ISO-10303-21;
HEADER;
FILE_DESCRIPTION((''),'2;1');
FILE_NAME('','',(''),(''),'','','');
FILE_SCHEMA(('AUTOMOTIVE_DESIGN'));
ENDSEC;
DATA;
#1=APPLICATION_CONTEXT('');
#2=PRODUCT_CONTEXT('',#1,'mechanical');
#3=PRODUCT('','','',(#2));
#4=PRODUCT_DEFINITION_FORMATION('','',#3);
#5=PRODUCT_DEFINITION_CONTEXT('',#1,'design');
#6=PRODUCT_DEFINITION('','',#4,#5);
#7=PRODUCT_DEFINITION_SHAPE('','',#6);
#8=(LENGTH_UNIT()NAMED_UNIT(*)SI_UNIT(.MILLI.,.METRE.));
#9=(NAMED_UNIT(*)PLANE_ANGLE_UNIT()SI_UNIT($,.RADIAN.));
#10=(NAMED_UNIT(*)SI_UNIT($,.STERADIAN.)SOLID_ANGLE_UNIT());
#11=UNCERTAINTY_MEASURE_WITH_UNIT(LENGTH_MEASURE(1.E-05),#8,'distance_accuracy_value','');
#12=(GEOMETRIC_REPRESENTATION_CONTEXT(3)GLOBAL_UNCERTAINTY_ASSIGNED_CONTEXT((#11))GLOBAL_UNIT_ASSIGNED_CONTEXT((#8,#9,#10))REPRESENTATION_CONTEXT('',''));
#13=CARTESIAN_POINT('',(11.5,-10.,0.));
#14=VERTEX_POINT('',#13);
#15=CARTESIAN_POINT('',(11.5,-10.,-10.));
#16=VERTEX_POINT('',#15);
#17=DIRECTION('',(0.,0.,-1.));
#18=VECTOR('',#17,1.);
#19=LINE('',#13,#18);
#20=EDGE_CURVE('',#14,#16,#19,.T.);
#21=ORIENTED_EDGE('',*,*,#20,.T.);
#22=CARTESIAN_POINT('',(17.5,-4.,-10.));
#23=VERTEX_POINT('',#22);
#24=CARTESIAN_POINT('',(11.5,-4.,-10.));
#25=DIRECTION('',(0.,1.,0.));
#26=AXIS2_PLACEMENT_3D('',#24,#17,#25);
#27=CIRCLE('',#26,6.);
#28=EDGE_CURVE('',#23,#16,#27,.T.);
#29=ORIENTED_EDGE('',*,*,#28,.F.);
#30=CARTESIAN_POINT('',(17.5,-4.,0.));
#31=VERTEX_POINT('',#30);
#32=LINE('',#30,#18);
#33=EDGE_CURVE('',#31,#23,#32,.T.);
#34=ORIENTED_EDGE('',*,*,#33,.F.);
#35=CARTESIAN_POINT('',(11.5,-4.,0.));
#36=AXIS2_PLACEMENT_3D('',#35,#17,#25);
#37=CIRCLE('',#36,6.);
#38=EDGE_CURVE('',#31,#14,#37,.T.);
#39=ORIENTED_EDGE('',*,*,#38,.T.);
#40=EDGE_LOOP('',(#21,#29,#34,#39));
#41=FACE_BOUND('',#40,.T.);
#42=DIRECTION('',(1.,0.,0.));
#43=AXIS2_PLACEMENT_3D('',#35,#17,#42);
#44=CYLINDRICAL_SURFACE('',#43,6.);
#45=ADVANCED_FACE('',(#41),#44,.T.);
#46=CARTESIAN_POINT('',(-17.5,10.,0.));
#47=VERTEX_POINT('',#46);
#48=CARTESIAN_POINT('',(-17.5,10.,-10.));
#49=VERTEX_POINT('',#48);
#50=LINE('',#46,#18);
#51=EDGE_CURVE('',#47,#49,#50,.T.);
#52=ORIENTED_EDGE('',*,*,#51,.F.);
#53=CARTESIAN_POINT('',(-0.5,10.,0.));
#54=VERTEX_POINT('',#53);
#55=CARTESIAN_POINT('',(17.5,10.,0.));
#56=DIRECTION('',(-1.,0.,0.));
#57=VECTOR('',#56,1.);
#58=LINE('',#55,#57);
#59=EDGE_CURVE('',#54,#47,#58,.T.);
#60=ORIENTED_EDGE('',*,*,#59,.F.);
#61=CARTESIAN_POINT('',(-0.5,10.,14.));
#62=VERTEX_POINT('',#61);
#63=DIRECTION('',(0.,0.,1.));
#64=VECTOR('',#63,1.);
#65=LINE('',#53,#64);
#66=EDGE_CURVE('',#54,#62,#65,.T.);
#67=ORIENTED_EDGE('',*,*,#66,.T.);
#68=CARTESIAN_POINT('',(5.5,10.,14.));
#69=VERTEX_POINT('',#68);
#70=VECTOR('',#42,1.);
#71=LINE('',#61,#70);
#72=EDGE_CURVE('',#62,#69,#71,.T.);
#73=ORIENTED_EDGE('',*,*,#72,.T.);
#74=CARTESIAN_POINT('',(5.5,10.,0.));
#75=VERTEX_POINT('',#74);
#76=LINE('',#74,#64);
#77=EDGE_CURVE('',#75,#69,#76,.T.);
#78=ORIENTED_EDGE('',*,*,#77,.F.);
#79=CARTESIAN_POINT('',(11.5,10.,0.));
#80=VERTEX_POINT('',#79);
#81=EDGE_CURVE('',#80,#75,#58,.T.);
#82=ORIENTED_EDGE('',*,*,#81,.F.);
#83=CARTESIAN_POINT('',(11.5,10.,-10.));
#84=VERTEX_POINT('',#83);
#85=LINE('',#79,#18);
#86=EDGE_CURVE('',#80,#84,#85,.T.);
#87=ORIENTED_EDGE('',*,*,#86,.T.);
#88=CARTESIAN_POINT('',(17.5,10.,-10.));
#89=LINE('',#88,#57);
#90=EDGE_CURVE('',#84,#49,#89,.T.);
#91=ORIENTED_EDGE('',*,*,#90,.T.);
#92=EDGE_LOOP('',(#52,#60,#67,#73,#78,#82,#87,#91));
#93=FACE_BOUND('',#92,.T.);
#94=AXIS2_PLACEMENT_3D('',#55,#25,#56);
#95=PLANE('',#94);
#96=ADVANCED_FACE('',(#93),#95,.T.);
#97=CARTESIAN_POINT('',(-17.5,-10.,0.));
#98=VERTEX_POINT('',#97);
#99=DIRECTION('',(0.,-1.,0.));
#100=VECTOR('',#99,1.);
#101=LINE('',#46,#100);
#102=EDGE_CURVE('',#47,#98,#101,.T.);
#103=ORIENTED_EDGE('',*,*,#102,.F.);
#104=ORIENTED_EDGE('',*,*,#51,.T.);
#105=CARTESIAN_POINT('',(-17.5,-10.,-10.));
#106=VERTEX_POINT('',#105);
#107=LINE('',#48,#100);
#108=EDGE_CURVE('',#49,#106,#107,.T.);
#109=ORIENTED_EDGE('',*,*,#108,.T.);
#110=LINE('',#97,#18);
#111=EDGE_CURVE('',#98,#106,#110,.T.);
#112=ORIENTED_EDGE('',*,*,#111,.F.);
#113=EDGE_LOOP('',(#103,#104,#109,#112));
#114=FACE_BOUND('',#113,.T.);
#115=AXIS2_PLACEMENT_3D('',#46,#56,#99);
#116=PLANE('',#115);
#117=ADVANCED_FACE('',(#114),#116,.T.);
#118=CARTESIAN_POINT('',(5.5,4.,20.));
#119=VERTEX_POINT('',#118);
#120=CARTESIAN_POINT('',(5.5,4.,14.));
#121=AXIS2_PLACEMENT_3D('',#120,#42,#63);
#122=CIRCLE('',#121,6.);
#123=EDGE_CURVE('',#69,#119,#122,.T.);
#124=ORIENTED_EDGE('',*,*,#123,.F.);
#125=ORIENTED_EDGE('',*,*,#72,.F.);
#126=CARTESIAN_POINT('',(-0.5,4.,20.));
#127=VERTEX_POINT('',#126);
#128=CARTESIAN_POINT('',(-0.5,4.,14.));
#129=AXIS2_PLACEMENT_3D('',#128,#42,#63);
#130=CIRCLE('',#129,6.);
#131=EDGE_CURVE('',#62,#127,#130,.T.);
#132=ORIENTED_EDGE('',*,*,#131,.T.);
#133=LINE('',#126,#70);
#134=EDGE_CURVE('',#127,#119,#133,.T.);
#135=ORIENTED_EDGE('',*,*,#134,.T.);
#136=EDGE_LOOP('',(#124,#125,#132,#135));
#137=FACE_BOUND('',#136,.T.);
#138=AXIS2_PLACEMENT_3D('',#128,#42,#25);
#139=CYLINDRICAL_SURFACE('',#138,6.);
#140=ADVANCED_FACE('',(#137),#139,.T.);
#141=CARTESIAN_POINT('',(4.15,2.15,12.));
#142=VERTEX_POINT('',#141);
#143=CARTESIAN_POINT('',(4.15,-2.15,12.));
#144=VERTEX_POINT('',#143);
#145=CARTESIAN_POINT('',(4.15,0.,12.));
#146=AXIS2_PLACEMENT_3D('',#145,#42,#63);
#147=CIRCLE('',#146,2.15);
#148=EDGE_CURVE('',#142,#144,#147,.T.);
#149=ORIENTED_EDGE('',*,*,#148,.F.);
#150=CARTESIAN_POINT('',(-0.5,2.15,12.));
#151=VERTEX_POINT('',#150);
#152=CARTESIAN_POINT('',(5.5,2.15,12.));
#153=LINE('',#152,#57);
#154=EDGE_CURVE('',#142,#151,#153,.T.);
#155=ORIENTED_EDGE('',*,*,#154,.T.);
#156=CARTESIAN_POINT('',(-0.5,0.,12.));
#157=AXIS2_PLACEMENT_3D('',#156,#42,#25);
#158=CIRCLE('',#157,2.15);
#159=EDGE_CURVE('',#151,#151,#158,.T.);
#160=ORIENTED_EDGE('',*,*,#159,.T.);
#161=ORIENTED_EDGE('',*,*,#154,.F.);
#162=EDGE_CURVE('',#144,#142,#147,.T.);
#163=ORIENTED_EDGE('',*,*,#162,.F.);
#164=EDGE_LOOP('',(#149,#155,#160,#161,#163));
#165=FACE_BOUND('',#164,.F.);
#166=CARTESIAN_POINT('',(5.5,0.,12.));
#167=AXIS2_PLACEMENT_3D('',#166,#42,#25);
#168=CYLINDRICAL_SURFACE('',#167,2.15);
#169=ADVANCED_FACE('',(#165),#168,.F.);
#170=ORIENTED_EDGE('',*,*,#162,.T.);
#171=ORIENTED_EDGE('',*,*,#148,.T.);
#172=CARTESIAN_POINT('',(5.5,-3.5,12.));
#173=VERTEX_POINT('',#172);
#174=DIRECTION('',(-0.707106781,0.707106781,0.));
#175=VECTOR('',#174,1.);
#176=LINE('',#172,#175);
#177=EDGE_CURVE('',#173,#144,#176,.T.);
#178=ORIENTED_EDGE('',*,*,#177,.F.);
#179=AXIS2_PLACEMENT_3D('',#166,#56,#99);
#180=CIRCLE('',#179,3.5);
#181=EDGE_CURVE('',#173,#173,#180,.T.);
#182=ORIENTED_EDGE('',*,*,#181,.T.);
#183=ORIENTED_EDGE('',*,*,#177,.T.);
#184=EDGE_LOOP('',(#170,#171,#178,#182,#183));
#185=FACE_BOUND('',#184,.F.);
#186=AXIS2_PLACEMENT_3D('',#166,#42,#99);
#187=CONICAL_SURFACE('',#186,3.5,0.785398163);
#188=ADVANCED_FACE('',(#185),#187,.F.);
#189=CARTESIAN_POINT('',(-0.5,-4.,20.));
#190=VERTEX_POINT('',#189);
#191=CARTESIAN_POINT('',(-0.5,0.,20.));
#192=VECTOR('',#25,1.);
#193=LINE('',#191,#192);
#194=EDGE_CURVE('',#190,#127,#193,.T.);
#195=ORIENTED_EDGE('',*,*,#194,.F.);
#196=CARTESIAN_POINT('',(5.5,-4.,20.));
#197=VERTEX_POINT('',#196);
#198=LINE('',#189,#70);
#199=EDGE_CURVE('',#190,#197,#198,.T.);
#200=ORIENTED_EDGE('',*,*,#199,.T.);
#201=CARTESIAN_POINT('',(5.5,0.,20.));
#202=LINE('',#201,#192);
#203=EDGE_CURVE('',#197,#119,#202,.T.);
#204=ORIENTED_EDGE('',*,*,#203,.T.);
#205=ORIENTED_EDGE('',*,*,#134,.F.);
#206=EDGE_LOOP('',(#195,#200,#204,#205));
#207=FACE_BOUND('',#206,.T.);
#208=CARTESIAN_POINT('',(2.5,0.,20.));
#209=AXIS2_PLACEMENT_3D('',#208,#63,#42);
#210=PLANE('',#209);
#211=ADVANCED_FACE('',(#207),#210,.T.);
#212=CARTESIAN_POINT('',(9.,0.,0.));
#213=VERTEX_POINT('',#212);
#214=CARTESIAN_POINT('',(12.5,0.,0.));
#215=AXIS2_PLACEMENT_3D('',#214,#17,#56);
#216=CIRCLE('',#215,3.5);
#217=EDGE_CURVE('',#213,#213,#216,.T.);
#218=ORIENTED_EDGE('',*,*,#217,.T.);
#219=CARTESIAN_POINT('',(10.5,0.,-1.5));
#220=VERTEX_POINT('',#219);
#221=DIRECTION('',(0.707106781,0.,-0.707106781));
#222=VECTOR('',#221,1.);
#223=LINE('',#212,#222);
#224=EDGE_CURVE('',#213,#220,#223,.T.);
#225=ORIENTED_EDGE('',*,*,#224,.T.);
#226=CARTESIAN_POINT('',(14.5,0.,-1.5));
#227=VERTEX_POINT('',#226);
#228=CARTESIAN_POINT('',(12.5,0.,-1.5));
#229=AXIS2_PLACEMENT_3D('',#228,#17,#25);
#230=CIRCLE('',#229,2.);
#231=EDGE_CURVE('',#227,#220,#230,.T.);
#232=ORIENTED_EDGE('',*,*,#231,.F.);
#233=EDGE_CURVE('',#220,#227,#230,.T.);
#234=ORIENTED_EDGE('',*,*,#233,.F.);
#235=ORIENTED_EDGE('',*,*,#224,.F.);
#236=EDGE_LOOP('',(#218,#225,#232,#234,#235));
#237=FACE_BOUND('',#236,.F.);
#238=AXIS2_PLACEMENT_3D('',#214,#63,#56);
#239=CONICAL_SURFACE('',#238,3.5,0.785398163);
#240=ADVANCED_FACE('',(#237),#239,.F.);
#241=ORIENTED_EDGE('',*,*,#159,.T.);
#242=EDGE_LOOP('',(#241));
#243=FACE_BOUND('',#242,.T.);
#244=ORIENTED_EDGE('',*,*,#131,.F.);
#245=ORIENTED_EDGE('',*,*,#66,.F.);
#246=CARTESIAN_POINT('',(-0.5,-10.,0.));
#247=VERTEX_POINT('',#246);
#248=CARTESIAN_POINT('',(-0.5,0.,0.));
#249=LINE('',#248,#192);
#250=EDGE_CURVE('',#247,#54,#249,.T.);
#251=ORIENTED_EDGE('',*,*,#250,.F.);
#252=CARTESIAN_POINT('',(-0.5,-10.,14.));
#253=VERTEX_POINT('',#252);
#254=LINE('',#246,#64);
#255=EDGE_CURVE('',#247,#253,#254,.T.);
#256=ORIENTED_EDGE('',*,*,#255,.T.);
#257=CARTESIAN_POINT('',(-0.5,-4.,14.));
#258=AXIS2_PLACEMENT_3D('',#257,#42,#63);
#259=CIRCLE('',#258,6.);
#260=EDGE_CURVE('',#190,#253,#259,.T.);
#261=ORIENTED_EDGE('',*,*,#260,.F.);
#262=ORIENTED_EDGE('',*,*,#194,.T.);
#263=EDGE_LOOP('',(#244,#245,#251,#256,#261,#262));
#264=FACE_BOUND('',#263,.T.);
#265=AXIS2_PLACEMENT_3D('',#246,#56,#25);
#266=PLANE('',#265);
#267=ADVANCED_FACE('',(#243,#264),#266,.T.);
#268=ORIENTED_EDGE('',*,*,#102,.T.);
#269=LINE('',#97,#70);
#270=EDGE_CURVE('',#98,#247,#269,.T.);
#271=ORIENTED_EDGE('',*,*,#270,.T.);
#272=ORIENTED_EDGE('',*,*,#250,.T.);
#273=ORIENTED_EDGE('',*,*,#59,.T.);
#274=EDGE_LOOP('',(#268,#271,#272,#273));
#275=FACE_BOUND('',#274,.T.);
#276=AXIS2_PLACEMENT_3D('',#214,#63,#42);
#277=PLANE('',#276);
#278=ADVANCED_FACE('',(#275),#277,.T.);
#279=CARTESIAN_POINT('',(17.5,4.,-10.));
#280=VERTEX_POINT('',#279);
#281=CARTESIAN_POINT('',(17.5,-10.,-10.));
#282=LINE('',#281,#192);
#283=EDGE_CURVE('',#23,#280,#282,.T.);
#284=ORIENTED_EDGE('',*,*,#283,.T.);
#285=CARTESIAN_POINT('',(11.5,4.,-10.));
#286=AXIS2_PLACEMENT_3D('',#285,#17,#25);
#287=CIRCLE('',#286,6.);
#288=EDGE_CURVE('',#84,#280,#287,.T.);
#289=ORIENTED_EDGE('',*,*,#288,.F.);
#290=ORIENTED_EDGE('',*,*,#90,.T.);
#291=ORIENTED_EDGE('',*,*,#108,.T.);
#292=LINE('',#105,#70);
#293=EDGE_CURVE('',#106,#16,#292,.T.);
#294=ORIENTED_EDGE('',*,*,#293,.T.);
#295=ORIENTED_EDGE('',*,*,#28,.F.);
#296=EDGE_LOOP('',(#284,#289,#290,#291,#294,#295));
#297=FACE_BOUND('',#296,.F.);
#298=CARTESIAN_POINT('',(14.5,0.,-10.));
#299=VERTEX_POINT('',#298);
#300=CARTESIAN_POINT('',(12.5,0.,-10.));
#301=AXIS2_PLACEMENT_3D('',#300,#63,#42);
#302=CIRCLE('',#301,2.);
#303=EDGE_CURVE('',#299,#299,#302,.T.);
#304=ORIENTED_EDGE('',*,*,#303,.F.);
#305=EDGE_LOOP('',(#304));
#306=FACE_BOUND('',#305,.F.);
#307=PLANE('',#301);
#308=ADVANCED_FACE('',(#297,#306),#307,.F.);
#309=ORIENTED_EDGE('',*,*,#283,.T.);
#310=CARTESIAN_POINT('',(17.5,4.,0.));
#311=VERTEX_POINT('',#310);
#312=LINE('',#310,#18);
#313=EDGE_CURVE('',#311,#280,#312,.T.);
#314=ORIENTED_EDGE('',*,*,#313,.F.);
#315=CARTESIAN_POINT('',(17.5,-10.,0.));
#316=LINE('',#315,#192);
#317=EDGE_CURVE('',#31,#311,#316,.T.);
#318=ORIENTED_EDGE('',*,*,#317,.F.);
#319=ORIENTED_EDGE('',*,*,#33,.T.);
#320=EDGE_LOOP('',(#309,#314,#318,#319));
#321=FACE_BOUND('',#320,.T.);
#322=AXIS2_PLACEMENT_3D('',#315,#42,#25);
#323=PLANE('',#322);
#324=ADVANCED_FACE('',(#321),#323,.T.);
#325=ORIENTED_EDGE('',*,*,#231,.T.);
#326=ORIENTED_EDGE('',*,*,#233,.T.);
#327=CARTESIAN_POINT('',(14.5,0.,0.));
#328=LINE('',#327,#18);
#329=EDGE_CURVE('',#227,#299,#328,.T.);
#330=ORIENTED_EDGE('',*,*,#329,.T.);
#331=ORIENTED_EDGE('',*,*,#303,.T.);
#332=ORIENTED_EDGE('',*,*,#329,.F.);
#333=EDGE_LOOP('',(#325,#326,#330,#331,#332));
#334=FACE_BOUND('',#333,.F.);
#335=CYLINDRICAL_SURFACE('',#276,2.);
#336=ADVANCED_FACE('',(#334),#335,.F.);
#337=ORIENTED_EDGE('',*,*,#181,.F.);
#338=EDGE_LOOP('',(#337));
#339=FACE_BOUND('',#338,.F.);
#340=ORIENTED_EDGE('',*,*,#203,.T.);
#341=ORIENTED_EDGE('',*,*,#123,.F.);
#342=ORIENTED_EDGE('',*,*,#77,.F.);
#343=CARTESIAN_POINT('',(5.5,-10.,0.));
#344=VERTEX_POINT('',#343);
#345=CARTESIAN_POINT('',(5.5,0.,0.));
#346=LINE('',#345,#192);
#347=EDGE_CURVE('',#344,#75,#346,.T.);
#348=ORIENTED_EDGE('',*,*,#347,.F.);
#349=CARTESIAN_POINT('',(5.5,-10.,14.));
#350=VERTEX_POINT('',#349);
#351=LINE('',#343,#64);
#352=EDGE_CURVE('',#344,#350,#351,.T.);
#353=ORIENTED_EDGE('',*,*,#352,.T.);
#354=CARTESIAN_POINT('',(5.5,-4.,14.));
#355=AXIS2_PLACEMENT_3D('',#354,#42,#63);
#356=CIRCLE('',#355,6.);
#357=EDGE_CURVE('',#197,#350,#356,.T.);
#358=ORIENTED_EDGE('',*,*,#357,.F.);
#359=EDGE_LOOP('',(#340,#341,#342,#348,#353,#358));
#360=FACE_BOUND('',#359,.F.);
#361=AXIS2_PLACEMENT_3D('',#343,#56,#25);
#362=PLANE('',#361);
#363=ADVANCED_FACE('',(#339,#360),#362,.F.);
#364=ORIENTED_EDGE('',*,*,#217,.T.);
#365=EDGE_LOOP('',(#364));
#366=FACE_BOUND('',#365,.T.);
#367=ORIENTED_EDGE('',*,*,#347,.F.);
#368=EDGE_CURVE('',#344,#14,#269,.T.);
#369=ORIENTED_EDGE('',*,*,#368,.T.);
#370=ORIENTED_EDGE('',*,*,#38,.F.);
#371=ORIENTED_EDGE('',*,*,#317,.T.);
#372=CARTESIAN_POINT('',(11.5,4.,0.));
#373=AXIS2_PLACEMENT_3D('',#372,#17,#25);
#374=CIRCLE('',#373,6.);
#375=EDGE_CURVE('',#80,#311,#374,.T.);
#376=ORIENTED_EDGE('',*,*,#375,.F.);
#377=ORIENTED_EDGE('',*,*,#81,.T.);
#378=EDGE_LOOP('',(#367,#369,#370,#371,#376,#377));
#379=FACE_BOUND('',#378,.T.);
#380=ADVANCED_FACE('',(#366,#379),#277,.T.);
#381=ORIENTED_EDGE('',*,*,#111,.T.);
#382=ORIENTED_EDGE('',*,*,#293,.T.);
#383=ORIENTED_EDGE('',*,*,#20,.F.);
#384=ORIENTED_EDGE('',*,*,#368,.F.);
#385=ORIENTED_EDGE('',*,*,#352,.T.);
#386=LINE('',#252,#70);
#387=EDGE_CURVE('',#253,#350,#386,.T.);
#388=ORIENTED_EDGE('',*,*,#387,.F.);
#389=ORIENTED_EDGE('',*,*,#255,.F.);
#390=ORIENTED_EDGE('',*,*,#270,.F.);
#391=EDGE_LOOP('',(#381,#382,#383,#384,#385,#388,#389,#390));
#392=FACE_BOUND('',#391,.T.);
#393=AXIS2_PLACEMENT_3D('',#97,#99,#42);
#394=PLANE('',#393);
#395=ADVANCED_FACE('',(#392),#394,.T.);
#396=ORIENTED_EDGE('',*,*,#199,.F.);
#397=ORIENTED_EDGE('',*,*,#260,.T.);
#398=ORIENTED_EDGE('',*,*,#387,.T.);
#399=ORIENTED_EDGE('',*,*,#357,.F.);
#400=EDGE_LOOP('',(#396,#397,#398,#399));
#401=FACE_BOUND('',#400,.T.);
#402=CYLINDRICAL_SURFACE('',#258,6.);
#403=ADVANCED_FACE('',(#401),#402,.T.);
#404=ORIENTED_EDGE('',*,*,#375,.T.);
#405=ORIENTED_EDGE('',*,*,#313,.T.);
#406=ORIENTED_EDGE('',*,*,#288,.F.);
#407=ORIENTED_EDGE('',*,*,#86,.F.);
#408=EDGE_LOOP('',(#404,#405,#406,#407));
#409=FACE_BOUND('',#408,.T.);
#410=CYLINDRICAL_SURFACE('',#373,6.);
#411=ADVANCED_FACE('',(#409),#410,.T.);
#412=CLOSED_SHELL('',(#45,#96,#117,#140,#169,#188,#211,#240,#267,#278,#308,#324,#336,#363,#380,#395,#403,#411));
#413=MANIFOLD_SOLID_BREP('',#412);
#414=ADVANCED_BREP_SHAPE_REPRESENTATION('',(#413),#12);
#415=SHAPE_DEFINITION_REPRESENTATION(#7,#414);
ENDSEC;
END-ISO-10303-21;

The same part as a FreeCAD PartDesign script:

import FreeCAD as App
import Part
import Sketcher
from FreeCAD import Vector
Q = App.Units.Quantity


def edges_at(feature, points):
    """Names of the edges that pass closest to the given points."""
    edges = feature.Shape.Edges
    near = lambda p: min(range(len(edges)), key=lambda i: edges[i].distToShape(Part.Vertex(*p))[0])
    return sorted({f"Edge{near(p) + 1}" for p in points})

doc = App.newDocument("Part")
body = doc.addObject("PartDesign::Body", "Body")

sketch1 = body.newObject("Sketcher::SketchObject", "Sketch")
sketch1.AttachmentSupport = (doc.getObject("XY_Plane"), [""])
sketch1.MapMode = "FlatFace"
sketch1.addGeometry([
    Part.LineSegment(Vector(17.5, 10, 0), Vector(-17.5, 10, 0)),
    Part.LineSegment(Vector(-17.5, 10, 0), Vector(-17.5, -10, 0)),
    Part.LineSegment(Vector(-17.5, -10, 0), Vector(17.5, -10, 0)),
    Part.LineSegment(Vector(17.5, -10, 0), Vector(17.5, 10, 0)),
    Part.Circle(Vector(12.5, 0, 0), Vector(0, 0, 1), 2),
], False)
sketch1.addConstraint([
    Sketcher.Constraint("Coincident", 0, 2, 1, 1),
    Sketcher.Constraint("Coincident", 1, 2, 2, 1),
    Sketcher.Constraint("Coincident", 2, 2, 3, 1),
    Sketcher.Constraint("Coincident", 3, 2, 0, 1),
    Sketcher.Constraint("Horizontal", 0),
    Sketcher.Constraint("Vertical", 1),
    Sketcher.Constraint("Horizontal", 2),
    Sketcher.Constraint("Vertical", 3),
    Sketcher.Constraint("Symmetric", 0, 2, 2, 2, -1, 1),
    Sketcher.Constraint("PointOnObject", 4, 3, -1),
    Sketcher.Constraint("Diameter", 4, Q("4 mm")),
    Sketcher.Constraint("DistanceX", 0, 2, 0, 1, Q("35 mm")),
    Sketcher.Constraint("DistanceY", 1, 2, 1, 1, Q("20 mm")),
    Sketcher.Constraint("DistanceX", 0, 2, 4, 3, Q("30 mm")),
])
pad1 = body.newObject("PartDesign::Pad", "Pad")
pad1.Profile = sketch1
pad1.Length = 10
pad1.Reversed = True

sketch2 = body.newObject("Sketcher::SketchObject", "Sketch001")
sketch2.AttachmentSupport = (doc.getObject("XY_Plane"), [""])
sketch2.MapMode = "FlatFace"
sketch2.addGeometry([
    Part.LineSegment(Vector(-0.5, 10, 0), Vector(-0.5, -10, 0)),
    Part.LineSegment(Vector(-0.5, -10, 0), Vector(5.5, -10, 0)),
    Part.LineSegment(Vector(5.5, -10, 0), Vector(5.5, 10, 0)),
    Part.LineSegment(Vector(5.5, 10, 0), Vector(-0.5, 10, 0)),
], False)
sketch2.addConstraint([
    Sketcher.Constraint("Coincident", 0, 2, 1, 1),
    Sketcher.Constraint("Coincident", 1, 2, 2, 1),
    Sketcher.Constraint("Coincident", 2, 2, 3, 1),
    Sketcher.Constraint("Coincident", 3, 2, 0, 1),
    Sketcher.Constraint("Vertical", 0),
    Sketcher.Constraint("Horizontal", 1),
    Sketcher.Constraint("Vertical", 2),
    Sketcher.Constraint("Horizontal", 3),
    Sketcher.Constraint("DistanceX", 1, 1, 1, 2, Q("6 mm")),
    Sketcher.Constraint("DistanceY", 0, 2, 0, 1, Q("20 mm")),
    Sketcher.Constraint("DistanceY", 0, 2, -1, 1, Q("10 mm")),
    Sketcher.Constraint("DistanceX", 0, 2, -1, 1, Q("0.5 mm")),
])
pad2 = body.newObject("PartDesign::Pad", "Pad001")
pad2.Profile = sketch2
pad2.Length = 20

sketch3 = body.newObject("Sketcher::SketchObject", "Sketch002")
sketch3.AttachmentSupport = (doc.getObject("YZ_Plane"), [""])
sketch3.MapMode = "FlatFace"
sketch3.AttachmentOffset = App.Placement(Vector(0, 0, 5.5), App.Rotation())
sketch3.addGeometry(Part.Circle(Vector(0, 12, 0), Vector(0, 0, 1), 2.15), False)
sketch3.addConstraint([
    Sketcher.Constraint("PointOnObject", 0, 3, -2),
    Sketcher.Constraint("Diameter", 0, Q("4.3 mm")),
    Sketcher.Constraint("DistanceY", -1, 1, 0, 3, Q("12 mm")),
])
pocket1 = body.newObject("PartDesign::Pocket", "Pocket")
pocket1.Profile = sketch3
pocket1.Length = 25
doc.recompute()

fillet = body.newObject("PartDesign::Fillet", "Fillet")
fillet.Base = (pocket1, edges_at(pocket1, [
    (2.5, -10, 20),
    (2.5, 10, 20),
    (17.5, 10, -5),
    (17.5, -10, -5),
]))
fillet.Radius = 6

sketch4 = body.newObject("Sketcher::SketchObject", "Sketch003")
sketch4.AttachmentSupport = (doc.getObject("YZ_Plane"), [""])
sketch4.MapMode = "FlatFace"
sketch4.AttachmentOffset = App.Placement(Vector(0, 0, 5.5), App.Rotation())
sketch4.addGeometry(Part.Circle(Vector(0, 12, 0), Vector(0, 0, 1), 2), False)
sketch4.addConstraint([
    Sketcher.Constraint("PointOnObject", 0, 3, -2),
    Sketcher.Constraint("Diameter", 0, Q("4 mm")),
    Sketcher.Constraint("DistanceY", -1, 1, 0, 3, Q("12 mm")),
])
doc.recompute()
hole = body.newObject("PartDesign::Hole", "Hole")
hole.Profile = sketch4
hole.ThreadType = "None"
hole.Diameter = 4
hole.DepthType = "Dimension"
hole.Depth = 7
hole.DrillPoint = "Flat"
hole.HoleCutType = "Countersink"
hole.HoleCutDiameter = 7
hole.HoleCutCountersinkAngle = 90

sketch5 = body.newObject("Sketcher::SketchObject", "Sketch004")
sketch5.AttachmentSupport = (doc.getObject("XY_Plane"), [""])
sketch5.MapMode = "FlatFace"
sketch5.addGeometry(Part.Circle(Vector(12.5, 0, 0), Vector(0, 0, 1), 2), False)
sketch5.addConstraint([
    Sketcher.Constraint("PointOnObject", 0, 3, -1),
    Sketcher.Constraint("Diameter", 0, Q("4 mm")),
    Sketcher.Constraint("DistanceX", -1, 1, 0, 3, Q("12.5 mm")),
])
doc.recompute()
hole2 = body.newObject("PartDesign::Hole", "Hole001")
hole2.Profile = sketch5
hole2.ThreadType = "None"
hole2.Diameter = 4
hole2.DepthType = "Dimension"
hole2.Depth = 12
hole2.DrillPoint = "Flat"
hole2.HoleCutType = "Countersink"
hole2.HoleCutDiameter = 7
hole2.HoleCutCountersinkAngle = 90

doc.recompute()
